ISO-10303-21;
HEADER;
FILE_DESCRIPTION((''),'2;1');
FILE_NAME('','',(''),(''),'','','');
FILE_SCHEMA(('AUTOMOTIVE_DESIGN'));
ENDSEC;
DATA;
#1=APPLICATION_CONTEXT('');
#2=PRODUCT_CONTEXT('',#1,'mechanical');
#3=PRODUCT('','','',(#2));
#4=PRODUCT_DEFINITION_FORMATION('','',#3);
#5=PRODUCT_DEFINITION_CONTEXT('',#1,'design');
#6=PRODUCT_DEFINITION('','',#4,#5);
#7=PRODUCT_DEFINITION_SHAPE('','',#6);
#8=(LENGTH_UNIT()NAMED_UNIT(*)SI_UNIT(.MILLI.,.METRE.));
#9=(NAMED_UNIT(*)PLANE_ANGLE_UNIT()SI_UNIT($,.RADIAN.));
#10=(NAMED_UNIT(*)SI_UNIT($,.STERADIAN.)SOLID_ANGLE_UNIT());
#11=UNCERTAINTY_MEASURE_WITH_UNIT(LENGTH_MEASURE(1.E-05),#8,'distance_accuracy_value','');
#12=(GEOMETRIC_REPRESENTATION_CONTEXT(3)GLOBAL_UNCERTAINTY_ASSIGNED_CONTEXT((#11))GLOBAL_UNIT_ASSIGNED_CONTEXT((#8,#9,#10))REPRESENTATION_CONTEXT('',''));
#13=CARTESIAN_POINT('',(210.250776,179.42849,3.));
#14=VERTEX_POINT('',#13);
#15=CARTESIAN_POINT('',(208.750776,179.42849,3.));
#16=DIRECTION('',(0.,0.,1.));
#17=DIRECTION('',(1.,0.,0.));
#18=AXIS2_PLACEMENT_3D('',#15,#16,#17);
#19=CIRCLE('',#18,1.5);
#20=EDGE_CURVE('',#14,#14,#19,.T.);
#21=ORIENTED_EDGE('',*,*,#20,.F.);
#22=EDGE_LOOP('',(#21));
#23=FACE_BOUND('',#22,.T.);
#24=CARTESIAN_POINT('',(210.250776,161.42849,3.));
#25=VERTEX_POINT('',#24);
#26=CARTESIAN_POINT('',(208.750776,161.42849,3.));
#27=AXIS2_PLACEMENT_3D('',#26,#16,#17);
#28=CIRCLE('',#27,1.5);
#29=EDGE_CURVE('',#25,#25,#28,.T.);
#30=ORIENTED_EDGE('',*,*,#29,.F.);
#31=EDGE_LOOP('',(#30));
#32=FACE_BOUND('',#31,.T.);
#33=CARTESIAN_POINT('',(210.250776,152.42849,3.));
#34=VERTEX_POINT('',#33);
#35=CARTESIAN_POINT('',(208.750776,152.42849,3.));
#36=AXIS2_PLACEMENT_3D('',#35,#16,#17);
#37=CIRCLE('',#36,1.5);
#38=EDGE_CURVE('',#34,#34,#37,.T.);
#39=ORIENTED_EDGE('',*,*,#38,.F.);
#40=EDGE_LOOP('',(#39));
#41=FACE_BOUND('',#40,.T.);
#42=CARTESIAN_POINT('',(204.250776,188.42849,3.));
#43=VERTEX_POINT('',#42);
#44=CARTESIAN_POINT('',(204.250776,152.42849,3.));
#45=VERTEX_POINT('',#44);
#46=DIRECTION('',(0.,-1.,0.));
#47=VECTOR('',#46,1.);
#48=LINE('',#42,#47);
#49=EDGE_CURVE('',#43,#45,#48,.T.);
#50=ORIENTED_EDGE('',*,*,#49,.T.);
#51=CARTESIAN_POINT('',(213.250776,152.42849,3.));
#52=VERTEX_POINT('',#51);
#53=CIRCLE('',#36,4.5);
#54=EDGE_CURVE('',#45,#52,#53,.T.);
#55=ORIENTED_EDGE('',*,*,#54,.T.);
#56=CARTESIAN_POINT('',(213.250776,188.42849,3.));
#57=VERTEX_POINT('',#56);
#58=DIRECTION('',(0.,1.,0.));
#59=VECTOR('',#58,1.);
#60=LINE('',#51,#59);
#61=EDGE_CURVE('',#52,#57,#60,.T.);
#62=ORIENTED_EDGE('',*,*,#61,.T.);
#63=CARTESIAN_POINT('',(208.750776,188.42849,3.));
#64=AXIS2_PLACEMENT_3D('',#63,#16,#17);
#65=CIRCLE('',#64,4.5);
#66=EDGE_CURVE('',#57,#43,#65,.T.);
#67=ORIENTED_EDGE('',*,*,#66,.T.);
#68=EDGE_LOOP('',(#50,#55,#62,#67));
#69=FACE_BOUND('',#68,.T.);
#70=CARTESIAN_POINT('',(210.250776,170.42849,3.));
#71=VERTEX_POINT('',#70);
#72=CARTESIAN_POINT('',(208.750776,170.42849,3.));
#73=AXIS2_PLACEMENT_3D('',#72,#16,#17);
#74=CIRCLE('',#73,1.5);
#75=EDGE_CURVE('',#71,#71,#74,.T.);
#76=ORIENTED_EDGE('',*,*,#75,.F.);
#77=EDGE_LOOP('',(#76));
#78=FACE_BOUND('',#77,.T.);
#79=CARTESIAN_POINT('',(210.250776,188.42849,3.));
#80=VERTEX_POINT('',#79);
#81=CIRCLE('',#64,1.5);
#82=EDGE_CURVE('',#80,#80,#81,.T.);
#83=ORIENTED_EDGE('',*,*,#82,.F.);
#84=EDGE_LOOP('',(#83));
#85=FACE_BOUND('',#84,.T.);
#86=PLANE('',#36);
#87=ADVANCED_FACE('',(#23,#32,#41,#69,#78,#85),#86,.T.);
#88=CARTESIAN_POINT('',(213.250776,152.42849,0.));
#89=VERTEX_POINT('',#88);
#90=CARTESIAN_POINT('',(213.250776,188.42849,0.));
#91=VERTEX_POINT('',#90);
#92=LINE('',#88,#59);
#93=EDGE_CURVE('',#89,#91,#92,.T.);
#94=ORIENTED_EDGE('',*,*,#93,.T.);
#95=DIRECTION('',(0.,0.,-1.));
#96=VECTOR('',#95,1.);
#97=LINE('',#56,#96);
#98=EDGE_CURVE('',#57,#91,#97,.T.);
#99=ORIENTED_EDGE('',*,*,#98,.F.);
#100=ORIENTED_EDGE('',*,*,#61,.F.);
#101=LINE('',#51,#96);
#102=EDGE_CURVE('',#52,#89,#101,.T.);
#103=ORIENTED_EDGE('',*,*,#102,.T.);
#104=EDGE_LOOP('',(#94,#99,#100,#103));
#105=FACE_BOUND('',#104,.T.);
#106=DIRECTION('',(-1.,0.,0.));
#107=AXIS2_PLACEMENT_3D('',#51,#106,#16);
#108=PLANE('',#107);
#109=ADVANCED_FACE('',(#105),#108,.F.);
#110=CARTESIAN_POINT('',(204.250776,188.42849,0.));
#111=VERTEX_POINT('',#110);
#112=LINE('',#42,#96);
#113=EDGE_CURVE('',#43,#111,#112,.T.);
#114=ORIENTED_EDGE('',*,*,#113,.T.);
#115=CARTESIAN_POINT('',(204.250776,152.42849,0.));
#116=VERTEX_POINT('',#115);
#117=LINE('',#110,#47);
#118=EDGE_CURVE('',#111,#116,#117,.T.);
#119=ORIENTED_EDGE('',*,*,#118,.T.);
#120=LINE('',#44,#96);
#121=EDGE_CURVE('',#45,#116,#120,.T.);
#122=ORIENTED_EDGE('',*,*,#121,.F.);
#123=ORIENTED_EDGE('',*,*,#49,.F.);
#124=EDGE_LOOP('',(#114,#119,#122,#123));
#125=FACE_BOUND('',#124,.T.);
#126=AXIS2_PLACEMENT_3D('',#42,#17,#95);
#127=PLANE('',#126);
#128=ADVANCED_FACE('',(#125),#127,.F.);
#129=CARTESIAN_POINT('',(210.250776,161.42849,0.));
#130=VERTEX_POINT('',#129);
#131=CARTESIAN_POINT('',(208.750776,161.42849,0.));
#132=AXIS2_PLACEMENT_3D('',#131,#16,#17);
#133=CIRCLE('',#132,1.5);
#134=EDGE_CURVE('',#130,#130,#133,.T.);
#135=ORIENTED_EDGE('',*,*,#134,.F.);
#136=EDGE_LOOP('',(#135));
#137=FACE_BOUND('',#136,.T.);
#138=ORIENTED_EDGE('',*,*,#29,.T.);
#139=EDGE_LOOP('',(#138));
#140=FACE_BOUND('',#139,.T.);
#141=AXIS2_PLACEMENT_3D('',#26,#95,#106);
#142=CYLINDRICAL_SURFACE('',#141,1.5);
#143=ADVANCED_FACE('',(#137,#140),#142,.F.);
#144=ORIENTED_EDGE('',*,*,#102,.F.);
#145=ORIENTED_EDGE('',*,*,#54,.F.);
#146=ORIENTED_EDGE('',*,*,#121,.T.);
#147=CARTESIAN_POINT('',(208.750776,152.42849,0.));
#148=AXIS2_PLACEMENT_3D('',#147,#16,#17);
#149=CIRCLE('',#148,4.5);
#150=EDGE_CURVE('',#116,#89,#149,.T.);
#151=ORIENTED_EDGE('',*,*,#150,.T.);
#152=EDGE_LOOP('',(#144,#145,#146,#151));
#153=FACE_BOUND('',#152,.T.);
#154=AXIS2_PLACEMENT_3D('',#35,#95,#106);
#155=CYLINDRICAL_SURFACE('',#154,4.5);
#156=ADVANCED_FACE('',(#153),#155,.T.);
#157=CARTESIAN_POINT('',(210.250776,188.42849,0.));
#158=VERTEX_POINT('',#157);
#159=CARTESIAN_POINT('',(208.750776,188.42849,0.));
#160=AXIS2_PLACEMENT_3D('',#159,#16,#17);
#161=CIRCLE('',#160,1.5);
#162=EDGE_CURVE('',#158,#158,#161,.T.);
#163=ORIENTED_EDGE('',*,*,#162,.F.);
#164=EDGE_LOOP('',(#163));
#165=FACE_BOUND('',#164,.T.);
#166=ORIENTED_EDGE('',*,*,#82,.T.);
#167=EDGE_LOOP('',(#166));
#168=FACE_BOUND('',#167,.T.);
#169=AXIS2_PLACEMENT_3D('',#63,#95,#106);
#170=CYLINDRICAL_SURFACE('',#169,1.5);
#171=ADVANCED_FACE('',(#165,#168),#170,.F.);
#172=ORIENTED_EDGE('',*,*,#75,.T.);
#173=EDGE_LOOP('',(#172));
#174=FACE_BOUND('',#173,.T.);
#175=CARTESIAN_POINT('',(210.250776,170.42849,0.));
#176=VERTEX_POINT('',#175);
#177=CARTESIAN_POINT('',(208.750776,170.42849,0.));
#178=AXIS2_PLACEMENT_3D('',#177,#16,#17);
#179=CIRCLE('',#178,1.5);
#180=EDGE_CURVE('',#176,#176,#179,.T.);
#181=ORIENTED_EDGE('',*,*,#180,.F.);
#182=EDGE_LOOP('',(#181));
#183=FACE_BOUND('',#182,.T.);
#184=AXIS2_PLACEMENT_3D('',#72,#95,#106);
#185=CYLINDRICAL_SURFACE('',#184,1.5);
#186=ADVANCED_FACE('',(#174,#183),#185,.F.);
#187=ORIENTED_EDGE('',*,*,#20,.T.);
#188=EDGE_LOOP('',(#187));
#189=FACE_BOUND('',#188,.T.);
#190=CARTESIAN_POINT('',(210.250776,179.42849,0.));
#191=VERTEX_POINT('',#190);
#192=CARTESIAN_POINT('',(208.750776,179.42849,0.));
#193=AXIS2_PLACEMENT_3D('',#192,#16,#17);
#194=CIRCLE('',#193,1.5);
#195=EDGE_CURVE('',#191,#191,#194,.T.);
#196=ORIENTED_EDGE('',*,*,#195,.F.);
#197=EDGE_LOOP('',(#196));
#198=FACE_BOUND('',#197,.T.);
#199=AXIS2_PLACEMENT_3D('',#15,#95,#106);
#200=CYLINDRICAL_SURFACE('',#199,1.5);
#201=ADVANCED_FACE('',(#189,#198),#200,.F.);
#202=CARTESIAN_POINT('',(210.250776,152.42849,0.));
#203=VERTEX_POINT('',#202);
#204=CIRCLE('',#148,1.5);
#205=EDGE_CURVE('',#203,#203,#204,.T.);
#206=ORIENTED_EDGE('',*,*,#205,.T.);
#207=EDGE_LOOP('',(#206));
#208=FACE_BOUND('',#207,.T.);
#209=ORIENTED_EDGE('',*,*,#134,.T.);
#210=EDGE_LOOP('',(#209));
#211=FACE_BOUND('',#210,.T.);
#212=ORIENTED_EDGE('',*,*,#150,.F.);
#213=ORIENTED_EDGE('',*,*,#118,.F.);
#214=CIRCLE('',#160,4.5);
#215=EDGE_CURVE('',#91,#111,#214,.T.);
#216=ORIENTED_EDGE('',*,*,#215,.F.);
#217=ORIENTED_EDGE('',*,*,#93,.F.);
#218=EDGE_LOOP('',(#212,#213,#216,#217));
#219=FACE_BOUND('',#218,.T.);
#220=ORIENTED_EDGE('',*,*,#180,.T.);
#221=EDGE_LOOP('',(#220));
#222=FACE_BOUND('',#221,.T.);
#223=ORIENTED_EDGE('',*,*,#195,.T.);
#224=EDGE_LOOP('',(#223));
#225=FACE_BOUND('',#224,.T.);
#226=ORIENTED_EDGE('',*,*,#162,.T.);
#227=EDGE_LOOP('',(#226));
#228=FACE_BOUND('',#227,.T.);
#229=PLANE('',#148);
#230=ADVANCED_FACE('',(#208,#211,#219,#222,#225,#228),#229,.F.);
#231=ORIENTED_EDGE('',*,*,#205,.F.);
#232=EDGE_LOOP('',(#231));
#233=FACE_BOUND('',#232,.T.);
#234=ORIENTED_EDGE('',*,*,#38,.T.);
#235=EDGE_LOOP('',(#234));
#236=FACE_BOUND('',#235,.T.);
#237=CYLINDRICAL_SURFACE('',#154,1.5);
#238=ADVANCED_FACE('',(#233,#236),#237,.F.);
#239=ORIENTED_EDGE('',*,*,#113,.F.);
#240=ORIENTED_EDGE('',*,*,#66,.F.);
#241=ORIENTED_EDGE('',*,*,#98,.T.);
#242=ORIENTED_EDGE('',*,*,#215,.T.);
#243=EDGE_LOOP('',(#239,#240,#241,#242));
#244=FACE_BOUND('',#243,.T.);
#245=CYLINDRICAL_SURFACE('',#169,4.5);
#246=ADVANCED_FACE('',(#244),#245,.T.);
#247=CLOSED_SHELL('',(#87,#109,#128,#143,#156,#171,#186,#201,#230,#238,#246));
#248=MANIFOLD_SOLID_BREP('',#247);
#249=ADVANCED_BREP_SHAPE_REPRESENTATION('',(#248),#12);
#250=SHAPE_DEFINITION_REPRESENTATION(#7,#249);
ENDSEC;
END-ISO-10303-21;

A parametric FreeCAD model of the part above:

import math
import FreeCAD as App
import Part
import Sketcher
Q = App.Units.Quantity

doc = App.newDocument("Part")
body = doc.addObject("PartDesign::Body", "Body")

# Sketch on XY plane
sketch1 = body.newObject("Sketcher::SketchObject", "Sketch")
sketch1.AttachmentSupport = (doc.getObject("XY_Plane"), [""])
sketch1.MapMode = "FlatFace"
sketch1.addGeometry([
    Part.LineSegment(App.Vector(213.3, 152.4, 0), App.Vector(213.3, 188.4, 0)),  # 0
    Part.ArcOfCircle(Part.Circle(App.Vector(208.8, 188.4, 0), App.Vector(0, 0, 1), 4.5), math.radians(0), math.radians(180)),  # 1
    Part.LineSegment(App.Vector(204.3, 188.4, 0), App.Vector(204.3, 152.4, 0)),  # 2
    Part.ArcOfCircle(Part.Circle(App.Vector(208.8, 152.4, 0), App.Vector(0, 0, 1), 4.5), math.radians(180), math.radians(360)),  # 3
    Part.Circle(App.Vector(208.8, 152.4, 0), App.Vector(0, 0, 1), 1.5),  # 4
    Part.Circle(App.Vector(208.8, 161.4, 0), App.Vector(0, 0, 1), 1.5),  # 5
    Part.Circle(App.Vector(208.8, 170.4, 0), App.Vector(0, 0, 1), 1.5),  # 6
    Part.Circle(App.Vector(208.8, 179.4, 0), App.Vector(0, 0, 1), 1.5),  # 7
    Part.Circle(App.Vector(208.8, 188.4, 0), App.Vector(0, 0, 1), 1.5),  # 8
], False)
sketch1.addConstraint([
    Sketcher.Constraint("Tangent", 0, 2, 1, 1),
    Sketcher.Constraint("Tangent", 1, 2, 2, 1),
    Sketcher.Constraint("Tangent", 2, 2, 3, 1),
    Sketcher.Constraint("Tangent", 3, 2, 0, 1),
    Sketcher.Constraint("Vertical", 0),
    Sketcher.Constraint("Vertical", 2),
    Sketcher.Constraint("Coincident", 4, 3, 3, 3),
    Sketcher.Constraint("Coincident", 8, 3, 1, 3),
    Sketcher.Constraint("Equal", 4, 5),
    Sketcher.Constraint("Equal", 5, 6),
    Sketcher.Constraint("Equal", 6, 7),
    Sketcher.Constraint("Equal", 7, 8),
    Sketcher.Constraint("Vertical", 4, 3, 5, 3),
    Sketcher.Constraint("Vertical", 5, 3, 6, 3),
    Sketcher.Constraint("Vertical", 6, 3, 7, 3),
    Sketcher.Constraint("Diameter", 4, Q("3 mm")),
    Sketcher.Constraint("Radius", 1, Q("4.5 mm")),
    Sketcher.Constraint("DistanceY", 0, 1, 0, 2, Q("36 mm")),
    Sketcher.Constraint("DistanceY", 3, 3, 5, 3, Q("9 mm")),
    Sketcher.Constraint("DistanceY", 5, 3, 6, 3, Q("9 mm")),
    Sketcher.Constraint("DistanceY", 7, 3, 1, 3, Q("9 mm")),
    Sketcher.Constraint("DistanceY", -1, 1, 1, 3, Q("188.42849 mm")),
    Sketcher.Constraint("DistanceX", -1, 1, 1, 3, Q("208.750776 mm")),
])
pad1 = body.newObject("PartDesign::Pad", "Pad")
pad1.Profile = sketch1
pad1.Length = 3

doc.recompute()
